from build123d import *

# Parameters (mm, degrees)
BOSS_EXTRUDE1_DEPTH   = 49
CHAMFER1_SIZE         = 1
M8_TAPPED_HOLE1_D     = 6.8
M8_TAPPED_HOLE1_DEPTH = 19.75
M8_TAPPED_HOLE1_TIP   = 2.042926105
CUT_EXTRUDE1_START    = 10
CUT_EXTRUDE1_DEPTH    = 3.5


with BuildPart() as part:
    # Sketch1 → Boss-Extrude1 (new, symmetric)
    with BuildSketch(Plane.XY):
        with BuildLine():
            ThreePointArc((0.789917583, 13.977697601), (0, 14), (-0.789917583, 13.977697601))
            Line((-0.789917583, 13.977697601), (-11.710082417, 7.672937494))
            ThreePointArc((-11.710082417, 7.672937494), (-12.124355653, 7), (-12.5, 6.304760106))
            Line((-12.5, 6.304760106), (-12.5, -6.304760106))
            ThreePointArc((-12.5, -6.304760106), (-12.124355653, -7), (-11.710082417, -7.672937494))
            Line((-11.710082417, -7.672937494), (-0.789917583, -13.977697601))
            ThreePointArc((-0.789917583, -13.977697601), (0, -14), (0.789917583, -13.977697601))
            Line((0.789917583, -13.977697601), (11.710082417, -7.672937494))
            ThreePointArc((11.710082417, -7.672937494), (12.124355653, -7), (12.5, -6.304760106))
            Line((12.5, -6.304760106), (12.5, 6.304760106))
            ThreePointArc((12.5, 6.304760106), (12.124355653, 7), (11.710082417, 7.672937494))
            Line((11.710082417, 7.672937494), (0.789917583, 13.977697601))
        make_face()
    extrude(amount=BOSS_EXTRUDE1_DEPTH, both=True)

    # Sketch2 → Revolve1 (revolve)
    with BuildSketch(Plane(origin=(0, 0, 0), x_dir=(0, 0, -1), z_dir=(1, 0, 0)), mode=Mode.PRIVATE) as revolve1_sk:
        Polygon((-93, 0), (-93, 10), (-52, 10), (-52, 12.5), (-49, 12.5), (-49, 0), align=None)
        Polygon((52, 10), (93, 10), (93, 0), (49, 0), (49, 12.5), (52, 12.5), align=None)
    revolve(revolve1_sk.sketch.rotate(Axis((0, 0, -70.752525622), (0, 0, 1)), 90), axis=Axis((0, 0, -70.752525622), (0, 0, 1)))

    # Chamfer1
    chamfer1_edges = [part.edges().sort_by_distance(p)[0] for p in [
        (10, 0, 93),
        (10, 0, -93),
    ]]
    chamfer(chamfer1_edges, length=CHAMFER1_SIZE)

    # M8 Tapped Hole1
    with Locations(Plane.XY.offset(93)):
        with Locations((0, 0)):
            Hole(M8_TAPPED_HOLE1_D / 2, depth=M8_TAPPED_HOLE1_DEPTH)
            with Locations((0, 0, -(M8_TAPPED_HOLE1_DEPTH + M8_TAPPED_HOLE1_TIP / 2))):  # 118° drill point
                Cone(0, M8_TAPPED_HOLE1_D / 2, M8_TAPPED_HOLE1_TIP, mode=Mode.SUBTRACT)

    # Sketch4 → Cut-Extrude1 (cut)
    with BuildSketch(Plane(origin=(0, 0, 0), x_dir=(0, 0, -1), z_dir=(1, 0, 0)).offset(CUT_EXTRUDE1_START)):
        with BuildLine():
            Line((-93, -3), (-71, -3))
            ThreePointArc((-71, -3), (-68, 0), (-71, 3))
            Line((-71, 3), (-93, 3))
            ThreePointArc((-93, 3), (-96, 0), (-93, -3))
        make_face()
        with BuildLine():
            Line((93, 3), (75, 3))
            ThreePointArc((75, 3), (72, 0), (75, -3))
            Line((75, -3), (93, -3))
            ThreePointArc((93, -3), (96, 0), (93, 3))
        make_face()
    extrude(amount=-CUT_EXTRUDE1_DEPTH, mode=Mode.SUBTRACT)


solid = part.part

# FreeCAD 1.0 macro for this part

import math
import FreeCAD as App
import Part
import Sketcher
Q = App.Units.Quantity


def edges_at(feature, points):
    """Names of the edges that pass closest to the given points."""
    edges = feature.Shape.Edges
    near = lambda p: min(range(len(edges)), key=lambda i: edges[i].distToShape(Part.Vertex(*p))[0])
    return sorted({f"Edge{near(p) + 1}" for p in points})

doc = App.newDocument("Part")
body = doc.addObject("PartDesign::Body", "Body")

sketch1 = body.newObject("Sketcher::SketchObject", "Sketch")
sketch1.AttachmentSupport = (doc.getObject("XY_Plane"), [""])
sketch1.MapMode = "FlatFace"
sketch1.addGeometry(Part.ArcOfCircle(Part.Circle(App.Vector(0, 0, 0), App.Vector(0, 0, 1), 14), math.radians(86.77), math.radians(93.23)), False)
sketch1.addGeometry(Part.LineSegment(App.Vector(-0.8, 14, 0), App.Vector(-11.7, 7.7, 0)), False)
sketch1.addGeometry(Part.ArcOfCircle(Part.Circle(App.Vector(0, 0, 0), App.Vector(0, 0, 1), 14), math.radians(146.77), math.radians(153.23)), False)
sketch1.addGeometry(Part.LineSegment(App.Vector(-12.5, 6.3, 0), App.Vector(-12.5, -6.3, 0)), False)
sketch1.addGeometry(Part.ArcOfCircle(Part.Circle(App.Vector(0, 0, 0), App.Vector(0, 0, 1), 14), math.radians(-153.23), math.radians(-146.77)), False)
sketch1.addGeometry(Part.LineSegment(App.Vector(-11.7, -7.7, 0), App.Vector(-0.8, -14, 0)), False)
sketch1.addGeometry(Part.ArcOfCircle(Part.Circle(App.Vector(0, 0, 0), App.Vector(0, 0, 1), 14), math.radians(-93.23), math.radians(-86.77)), False)
sketch1.addGeometry(Part.LineSegment(App.Vector(0.8, -14, 0), App.Vector(11.7, -7.7, 0)), False)
sketch1.addGeometry(Part.ArcOfCircle(Part.Circle(App.Vector(0, 0, 0), App.Vector(0, 0, 1), 14), math.radians(-33.23), math.radians(-26.77)), False)
sketch1.addGeometry(Part.LineSegment(App.Vector(12.5, -6.3, 0), App.Vector(12.5, 6.3, 0)), False)
sketch1.addGeometry(Part.ArcOfCircle(Part.Circle(App.Vector(0, 0, 0), App.Vector(0, 0, 1), 14), math.radians(26.77), math.radians(33.23)), False)
sketch1.addGeometry(Part.LineSegment(App.Vector(11.7, 7.7, 0), App.Vector(0.8, 14, 0)), False)
sketch1.addConstraint(Sketcher.Constraint("Coincident", 0, 2, 1, 1))
sketch1.addConstraint(Sketcher.Constraint("Coincident", 1, 2, 2, 1))
sketch1.addConstraint(Sketcher.Constraint("Coincident", 2, 2, 3, 1))
sketch1.addConstraint(Sketcher.Constraint("Coincident", 3, 2, 4, 1))
sketch1.addConstraint(Sketcher.Constraint("Coincident", 4, 2, 5, 1))
sketch1.addConstraint(Sketcher.Constraint("Coincident", 5, 2, 6, 1))
sketch1.addConstraint(Sketcher.Constraint("Coincident", 6, 2, 7, 1))
sketch1.addConstraint(Sketcher.Constraint("Coincident", 7, 2, 8, 1))
sketch1.addConstraint(Sketcher.Constraint("Coincident", 8, 2, 9, 1))
sketch1.addConstraint(Sketcher.Constraint("Coincident", 9, 2, 10, 1))
sketch1.addConstraint(Sketcher.Constraint("Coincident", 10, 2, 11, 1))
sketch1.addConstraint(Sketcher.Constraint("Coincident", 11, 2, 0, 1))
sketch1.addConstraint(Sketcher.Constraint("Vertical", 3))
sketch1.addConstraint(Sketcher.Constraint("Vertical", 9))
sketch1.addConstraint(Sketcher.Constraint("Coincident", 0, 3, -1, 1))
sketch1.addConstraint(Sketcher.Constraint("Coincident", 2, 3, -1, 1))
sketch1.addConstraint(Sketcher.Constraint("Coincident", 4, 3, -1, 1))
sketch1.addConstraint(Sketcher.Constraint("Coincident", 6, 3, -1, 1))
sketch1.addConstraint(Sketcher.Constraint("Coincident", 8, 3, -1, 1))
sketch1.addConstraint(Sketcher.Constraint("Coincident", 10, 3, -1, 1))
sketch1.addConstraint(Sketcher.Constraint("Equal", 0, 2))
sketch1.addConstraint(Sketcher.Constraint("Equal", 2, 4))
sketch1.addConstraint(Sketcher.Constraint("Equal", 4, 6))
sketch1.addConstraint(Sketcher.Constraint("Equal", 6, 8))
sketch1.addConstraint(Sketcher.Constraint("Equal", 8, 10))
sketch1.addConstraint(Sketcher.Constraint("Parallel", 1, 7))
sketch1.addConstraint(Sketcher.Constraint("Parallel", 5, 11))
sketch1.addConstraint(Sketcher.Constraint("Horizontal", 5, 2, 6, 2))
sketch1.addConstraint(Sketcher.Constraint("Horizontal", 4, 2, 7, 2))
sketch1.addConstraint(Sketcher.Constraint("Horizontal", 3, 2, 8, 2))
sketch1.addConstraint(Sketcher.Constraint("Horizontal", 1, 2, 10, 2))
sketch1.addConstraint(Sketcher.Constraint("Vertical", 1, 2, 4, 2))
sketch1.addConstraint(Sketcher.Constraint("Radius", 0, Q("14 mm")))
sketch1.addConstraint(Sketcher.Constraint("Angle", 1, Q("-150 deg")))
sketch1.addConstraint(Sketcher.Constraint("DistanceX", 2, 2, -1, 1, Q("12.5 mm")))
sketch1.addConstraint(Sketcher.Constraint("DistanceX", 4, 2, 6, 2, Q("12.5 mm")))
pad1 = body.newObject("PartDesign::Pad", "Pad")
pad1.Profile = sketch1
pad1.Length = 98
pad1.Midplane = True

sketch2 = body.newObject("Sketcher::SketchObject", "Sketch001")
sketch2.AttachmentSupport = (doc.getObject("YZ_Plane"), [""])
sketch2.MapMode = "FlatFace"
sketch2.addGeometry(Part.LineSegment(App.Vector(10, 93, 0), App.Vector(0, 93, 0)), False)
sketch2.addGeometry(Part.LineSegment(App.Vector(0, 93, 0), App.Vector(0, 49, 0)), False)
sketch2.addGeometry(Part.LineSegment(App.Vector(0, 49, 0), App.Vector(12.5, 49, 0)), False)
sketch2.addGeometry(Part.LineSegment(App.Vector(12.5, 49, 0), App.Vector(12.5, 52, 0)), False)
sketch2.addGeometry(Part.LineSegment(App.Vector(12.5, 52, 0), App.Vector(10, 52, 0)), False)
sketch2.addGeometry(Part.LineSegment(App.Vector(10, 52, 0), App.Vector(10, 93, 0)), False)
sketch2.addGeometry(Part.LineSegment(App.Vector(10, -93, 0), App.Vector(10, -52, 0)), False)
sketch2.addGeometry(Part.LineSegment(App.Vector(10, -52, 0), App.Vector(12.5, -52, 0)), False)
sketch2.addGeometry(Part.LineSegment(App.Vector(12.5, -52, 0), App.Vector(12.5, -49, 0)), False)
sketch2.addGeometry(Part.LineSegment(App.Vector(12.5, -49, 0), App.Vector(0, -49, 0)), False)
sketch2.addGeometry(Part.LineSegment(App.Vector(0, -49, 0), App.Vector(0, -93, 0)), False)
sketch2.addGeometry(Part.LineSegment(App.Vector(0, -93, 0), App.Vector(10, -93, 0)), False)
sketch2.addConstraint(Sketcher.Constraint("Coincident", 0, 2, 1, 1))
sketch2.addConstraint(Sketcher.Constraint("Coincident", 1, 2, 2, 1))
sketch2.addConstraint(Sketcher.Constraint("Coincident", 2, 2, 3, 1))
sketch2.addConstraint(Sketcher.Constraint("Coincident", 3, 2, 4, 1))
sketch2.addConstraint(Sketcher.Constraint("Coincident", 4, 2, 5, 1))
sketch2.addConstraint(Sketcher.Constraint("Coincident", 5, 2, 0, 1))
sketch2.addConstraint(Sketcher.Constraint("Coincident", 6, 2, 7, 1))
sketch2.addConstraint(Sketcher.Constraint("Coincident", 7, 2, 8, 1))
sketch2.addConstraint(Sketcher.Constraint("Coincident", 8, 2, 9, 1))
sketch2.addConstraint(Sketcher.Constraint("Coincident", 9, 2, 10, 1))
sketch2.addConstraint(Sketcher.Constraint("Coincident", 10, 2, 11, 1))
sketch2.addConstraint(Sketcher.Constraint("Coincident", 11, 2, 6, 1))
sketch2.addConstraint(Sketcher.Constraint("Horizontal", 0))
sketch2.addConstraint(Sketcher.Constraint("Vertical", 1))
sketch2.addConstraint(Sketcher.Constraint("Horizontal", 2))
sketch2.addConstraint(Sketcher.Constraint("Vertical", 3))
sketch2.addConstraint(Sketcher.Constraint("Horizontal", 4))
sketch2.addConstraint(Sketcher.Constraint("Vertical", 5))
sketch2.addConstraint(Sketcher.Constraint("Vertical", 6))
sketch2.addConstraint(Sketcher.Constraint("Horizontal", 7))
sketch2.addConstraint(Sketcher.Constraint("Vertical", 8))
sketch2.addConstraint(Sketcher.Constraint("Horizontal", 9))
sketch2.addConstraint(Sketcher.Constraint("Vertical", 10))
sketch2.addConstraint(Sketcher.Constraint("Horizontal", 11))
sketch2.addConstraint(Sketcher.Constraint("Symmetric", 1, 2, 9, 2, -1, 1))
sketch2.addConstraint(Sketcher.Constraint("Symmetric", 4, 2, 6, 2, -1))
sketch2.addConstraint(Sketcher.Constraint("Symmetric", 0, 2, 10, 2, -1))
sketch2.addConstraint(Sketcher.Constraint("Vertical", 3, 2, 7, 2))
sketch2.addConstraint(Sketcher.Constraint("DistanceX", 0, 2, 0, 1, Q("10 mm")))
sketch2.addConstraint(Sketcher.Constraint("DistanceY", 1, 2, 1, 1, Q("44 mm")))
sketch2.addConstraint(Sketcher.Constraint("DistanceY", 3, 1, 3, 2, Q("3 mm")))
sketch2.addConstraint(Sketcher.Constraint("DistanceX", 2, 1, 2, 2, Q("12.5 mm")))
sketch2.addConstraint(Sketcher.Constraint("DistanceY", -1, 1, 0, 2, Q("93 mm")))
revolution = body.newObject("PartDesign::Revolution", "Revolution")
revolution.Profile = sketch2
revolution.ReferenceAxis = (sketch2, ["V_Axis"])
revolution.Angle = 360
doc.recompute()

chamfer = body.newObject("PartDesign::Chamfer", "Chamfer")
chamfer.Base = (revolution, edges_at(revolution, [(10, 0, 93), (10, 0, -93)]))
chamfer.Size = 1

sketch3 = body.newObject("Sketcher::SketchObject", "Sketch002")
sketch3.AttachmentSupport = (doc.getObject("XY_Plane"), [""])
sketch3.MapMode = "FlatFace"
sketch3.AttachmentOffset = App.Placement(App.Vector(0, 0, 93), App.Rotation())
sketch3.addGeometry(Part.Circle(App.Vector(0, 0, 0), App.Vector(0, 0, 1), 3.4), False)
sketch3.addConstraint(Sketcher.Constraint("Coincident", 0, 3, -1, 1))
sketch3.addConstraint(Sketcher.Constraint("Diameter", 0, Q("6.8 mm")))
doc.recompute()
hole = body.newObject("PartDesign::Hole", "Hole")
hole.Profile = sketch3
hole.ThreadType = "None"
hole.Diameter = 6.8
hole.DepthType = "Dimension"
hole.Depth = 19.75
hole.DrillPoint = "Angled"
hole.DrillPointAngle = 118

sketch4 = body.newObject("Sketcher::SketchObject", "Sketch003")
sketch4.AttachmentSupport = (doc.getObject("YZ_Plane"), [""])
sketch4.MapMode = "FlatFace"
sketch4.AttachmentOffset = App.Placement(App.Vector(0, 0, 10), App.Rotation())
sketch4.addGeometry(Part.LineSegment(App.Vector(-3, 93, 0), App.Vector(-3, 71, 0)), False)
sketch4.addGeometry(Part.ArcOfCircle(Part.Circle(App.Vector(0, 71, 0), App.Vector(0, 0, 1), 3), math.radians(180), math.radians(360)), False)
sketch4.addGeometry(Part.LineSegment(App.Vector(3, 71, 0), App.Vector(3, 93, 0)), False)
sketch4.addGeometry(Part.ArcOfCircle(Part.Circle(App.Vector(0, 93, 0), App.Vector(0, 0, 1), 3), math.radians(0), math.radians(180)), False)
sketch4.addGeometry(Part.LineSegment(App.Vector(3, -93, 0), App.Vector(3, -75, 0)), False)
sketch4.addGeometry(Part.ArcOfCircle(Part.Circle(App.Vector(0, -75, 0), App.Vector(0, 0, 1), 3), math.radians(0), math.radians(180)), False)
sketch4.addGeometry(Part.LineSegment(App.Vector(-3, -75, 0), App.Vector(-3, -93, 0)), False)
sketch4.addGeometry(Part.ArcOfCircle(Part.Circle(App.Vector(0, -93, 0), App.Vector(0, 0, 1), 3), math.radians(180), math.radians(360)), False)
sketch4.addConstraint(Sketcher.Constraint("Tangent", 0, 2, 1, 1))
sketch4.addConstraint(Sketcher.Constraint("Tangent", 1, 2, 2, 1))
sketch4.addConstraint(Sketcher.Constraint("Tangent", 2, 2, 3, 1))
sketch4.addConstraint(Sketcher.Constraint("Tangent", 3, 2, 0, 1))
sketch4.addConstraint(Sketcher.Constraint("Tangent", 4, 2, 5, 1))
sketch4.addConstraint(Sketcher.Constraint("Tangent", 5, 2, 6, 1))
sketch4.addConstraint(Sketcher.Constraint("Tangent", 6, 2, 7, 1))
sketch4.addConstraint(Sketcher.Constraint("Tangent", 7, 2, 4, 1))
sketch4.addConstraint(Sketcher.Constraint("Vertical", 0))
sketch4.addConstraint(Sketcher.Constraint("Vertical", 2))
sketch4.addConstraint(Sketcher.Constraint("Vertical", 4))
sketch4.addConstraint(Sketcher.Constraint("Vertical", 6))
sketch4.addConstraint(Sketcher.Constraint("Equal", 3, 5))
sketch4.addConstraint(Sketcher.Constraint("Symmetric", 3, 3, 7, 3, -1, 1))
sketch4.addConstraint(Sketcher.Constraint("PointOnObject", 1, 3, -2))
sketch4.addConstraint(Sketcher.Constraint("Radius", 1, Q("3 mm")))
sketch4.addConstraint(Sketcher.Constraint("DistanceY", 0, 2, 0, 1, Q("22 mm")))
sketch4.addConstraint(Sketcher.Constraint("DistanceY", 4, 1, 4, 2, Q("18 mm")))
sketch4.addConstraint(Sketcher.Constraint("DistanceY", -1, 1, 1, 3, Q("71 mm")))
pocket1 = body.newObject("PartDesign::Pocket", "Pocket")
pocket1.Profile = sketch4
pocket1.Length = 3.5

doc.recompute()
